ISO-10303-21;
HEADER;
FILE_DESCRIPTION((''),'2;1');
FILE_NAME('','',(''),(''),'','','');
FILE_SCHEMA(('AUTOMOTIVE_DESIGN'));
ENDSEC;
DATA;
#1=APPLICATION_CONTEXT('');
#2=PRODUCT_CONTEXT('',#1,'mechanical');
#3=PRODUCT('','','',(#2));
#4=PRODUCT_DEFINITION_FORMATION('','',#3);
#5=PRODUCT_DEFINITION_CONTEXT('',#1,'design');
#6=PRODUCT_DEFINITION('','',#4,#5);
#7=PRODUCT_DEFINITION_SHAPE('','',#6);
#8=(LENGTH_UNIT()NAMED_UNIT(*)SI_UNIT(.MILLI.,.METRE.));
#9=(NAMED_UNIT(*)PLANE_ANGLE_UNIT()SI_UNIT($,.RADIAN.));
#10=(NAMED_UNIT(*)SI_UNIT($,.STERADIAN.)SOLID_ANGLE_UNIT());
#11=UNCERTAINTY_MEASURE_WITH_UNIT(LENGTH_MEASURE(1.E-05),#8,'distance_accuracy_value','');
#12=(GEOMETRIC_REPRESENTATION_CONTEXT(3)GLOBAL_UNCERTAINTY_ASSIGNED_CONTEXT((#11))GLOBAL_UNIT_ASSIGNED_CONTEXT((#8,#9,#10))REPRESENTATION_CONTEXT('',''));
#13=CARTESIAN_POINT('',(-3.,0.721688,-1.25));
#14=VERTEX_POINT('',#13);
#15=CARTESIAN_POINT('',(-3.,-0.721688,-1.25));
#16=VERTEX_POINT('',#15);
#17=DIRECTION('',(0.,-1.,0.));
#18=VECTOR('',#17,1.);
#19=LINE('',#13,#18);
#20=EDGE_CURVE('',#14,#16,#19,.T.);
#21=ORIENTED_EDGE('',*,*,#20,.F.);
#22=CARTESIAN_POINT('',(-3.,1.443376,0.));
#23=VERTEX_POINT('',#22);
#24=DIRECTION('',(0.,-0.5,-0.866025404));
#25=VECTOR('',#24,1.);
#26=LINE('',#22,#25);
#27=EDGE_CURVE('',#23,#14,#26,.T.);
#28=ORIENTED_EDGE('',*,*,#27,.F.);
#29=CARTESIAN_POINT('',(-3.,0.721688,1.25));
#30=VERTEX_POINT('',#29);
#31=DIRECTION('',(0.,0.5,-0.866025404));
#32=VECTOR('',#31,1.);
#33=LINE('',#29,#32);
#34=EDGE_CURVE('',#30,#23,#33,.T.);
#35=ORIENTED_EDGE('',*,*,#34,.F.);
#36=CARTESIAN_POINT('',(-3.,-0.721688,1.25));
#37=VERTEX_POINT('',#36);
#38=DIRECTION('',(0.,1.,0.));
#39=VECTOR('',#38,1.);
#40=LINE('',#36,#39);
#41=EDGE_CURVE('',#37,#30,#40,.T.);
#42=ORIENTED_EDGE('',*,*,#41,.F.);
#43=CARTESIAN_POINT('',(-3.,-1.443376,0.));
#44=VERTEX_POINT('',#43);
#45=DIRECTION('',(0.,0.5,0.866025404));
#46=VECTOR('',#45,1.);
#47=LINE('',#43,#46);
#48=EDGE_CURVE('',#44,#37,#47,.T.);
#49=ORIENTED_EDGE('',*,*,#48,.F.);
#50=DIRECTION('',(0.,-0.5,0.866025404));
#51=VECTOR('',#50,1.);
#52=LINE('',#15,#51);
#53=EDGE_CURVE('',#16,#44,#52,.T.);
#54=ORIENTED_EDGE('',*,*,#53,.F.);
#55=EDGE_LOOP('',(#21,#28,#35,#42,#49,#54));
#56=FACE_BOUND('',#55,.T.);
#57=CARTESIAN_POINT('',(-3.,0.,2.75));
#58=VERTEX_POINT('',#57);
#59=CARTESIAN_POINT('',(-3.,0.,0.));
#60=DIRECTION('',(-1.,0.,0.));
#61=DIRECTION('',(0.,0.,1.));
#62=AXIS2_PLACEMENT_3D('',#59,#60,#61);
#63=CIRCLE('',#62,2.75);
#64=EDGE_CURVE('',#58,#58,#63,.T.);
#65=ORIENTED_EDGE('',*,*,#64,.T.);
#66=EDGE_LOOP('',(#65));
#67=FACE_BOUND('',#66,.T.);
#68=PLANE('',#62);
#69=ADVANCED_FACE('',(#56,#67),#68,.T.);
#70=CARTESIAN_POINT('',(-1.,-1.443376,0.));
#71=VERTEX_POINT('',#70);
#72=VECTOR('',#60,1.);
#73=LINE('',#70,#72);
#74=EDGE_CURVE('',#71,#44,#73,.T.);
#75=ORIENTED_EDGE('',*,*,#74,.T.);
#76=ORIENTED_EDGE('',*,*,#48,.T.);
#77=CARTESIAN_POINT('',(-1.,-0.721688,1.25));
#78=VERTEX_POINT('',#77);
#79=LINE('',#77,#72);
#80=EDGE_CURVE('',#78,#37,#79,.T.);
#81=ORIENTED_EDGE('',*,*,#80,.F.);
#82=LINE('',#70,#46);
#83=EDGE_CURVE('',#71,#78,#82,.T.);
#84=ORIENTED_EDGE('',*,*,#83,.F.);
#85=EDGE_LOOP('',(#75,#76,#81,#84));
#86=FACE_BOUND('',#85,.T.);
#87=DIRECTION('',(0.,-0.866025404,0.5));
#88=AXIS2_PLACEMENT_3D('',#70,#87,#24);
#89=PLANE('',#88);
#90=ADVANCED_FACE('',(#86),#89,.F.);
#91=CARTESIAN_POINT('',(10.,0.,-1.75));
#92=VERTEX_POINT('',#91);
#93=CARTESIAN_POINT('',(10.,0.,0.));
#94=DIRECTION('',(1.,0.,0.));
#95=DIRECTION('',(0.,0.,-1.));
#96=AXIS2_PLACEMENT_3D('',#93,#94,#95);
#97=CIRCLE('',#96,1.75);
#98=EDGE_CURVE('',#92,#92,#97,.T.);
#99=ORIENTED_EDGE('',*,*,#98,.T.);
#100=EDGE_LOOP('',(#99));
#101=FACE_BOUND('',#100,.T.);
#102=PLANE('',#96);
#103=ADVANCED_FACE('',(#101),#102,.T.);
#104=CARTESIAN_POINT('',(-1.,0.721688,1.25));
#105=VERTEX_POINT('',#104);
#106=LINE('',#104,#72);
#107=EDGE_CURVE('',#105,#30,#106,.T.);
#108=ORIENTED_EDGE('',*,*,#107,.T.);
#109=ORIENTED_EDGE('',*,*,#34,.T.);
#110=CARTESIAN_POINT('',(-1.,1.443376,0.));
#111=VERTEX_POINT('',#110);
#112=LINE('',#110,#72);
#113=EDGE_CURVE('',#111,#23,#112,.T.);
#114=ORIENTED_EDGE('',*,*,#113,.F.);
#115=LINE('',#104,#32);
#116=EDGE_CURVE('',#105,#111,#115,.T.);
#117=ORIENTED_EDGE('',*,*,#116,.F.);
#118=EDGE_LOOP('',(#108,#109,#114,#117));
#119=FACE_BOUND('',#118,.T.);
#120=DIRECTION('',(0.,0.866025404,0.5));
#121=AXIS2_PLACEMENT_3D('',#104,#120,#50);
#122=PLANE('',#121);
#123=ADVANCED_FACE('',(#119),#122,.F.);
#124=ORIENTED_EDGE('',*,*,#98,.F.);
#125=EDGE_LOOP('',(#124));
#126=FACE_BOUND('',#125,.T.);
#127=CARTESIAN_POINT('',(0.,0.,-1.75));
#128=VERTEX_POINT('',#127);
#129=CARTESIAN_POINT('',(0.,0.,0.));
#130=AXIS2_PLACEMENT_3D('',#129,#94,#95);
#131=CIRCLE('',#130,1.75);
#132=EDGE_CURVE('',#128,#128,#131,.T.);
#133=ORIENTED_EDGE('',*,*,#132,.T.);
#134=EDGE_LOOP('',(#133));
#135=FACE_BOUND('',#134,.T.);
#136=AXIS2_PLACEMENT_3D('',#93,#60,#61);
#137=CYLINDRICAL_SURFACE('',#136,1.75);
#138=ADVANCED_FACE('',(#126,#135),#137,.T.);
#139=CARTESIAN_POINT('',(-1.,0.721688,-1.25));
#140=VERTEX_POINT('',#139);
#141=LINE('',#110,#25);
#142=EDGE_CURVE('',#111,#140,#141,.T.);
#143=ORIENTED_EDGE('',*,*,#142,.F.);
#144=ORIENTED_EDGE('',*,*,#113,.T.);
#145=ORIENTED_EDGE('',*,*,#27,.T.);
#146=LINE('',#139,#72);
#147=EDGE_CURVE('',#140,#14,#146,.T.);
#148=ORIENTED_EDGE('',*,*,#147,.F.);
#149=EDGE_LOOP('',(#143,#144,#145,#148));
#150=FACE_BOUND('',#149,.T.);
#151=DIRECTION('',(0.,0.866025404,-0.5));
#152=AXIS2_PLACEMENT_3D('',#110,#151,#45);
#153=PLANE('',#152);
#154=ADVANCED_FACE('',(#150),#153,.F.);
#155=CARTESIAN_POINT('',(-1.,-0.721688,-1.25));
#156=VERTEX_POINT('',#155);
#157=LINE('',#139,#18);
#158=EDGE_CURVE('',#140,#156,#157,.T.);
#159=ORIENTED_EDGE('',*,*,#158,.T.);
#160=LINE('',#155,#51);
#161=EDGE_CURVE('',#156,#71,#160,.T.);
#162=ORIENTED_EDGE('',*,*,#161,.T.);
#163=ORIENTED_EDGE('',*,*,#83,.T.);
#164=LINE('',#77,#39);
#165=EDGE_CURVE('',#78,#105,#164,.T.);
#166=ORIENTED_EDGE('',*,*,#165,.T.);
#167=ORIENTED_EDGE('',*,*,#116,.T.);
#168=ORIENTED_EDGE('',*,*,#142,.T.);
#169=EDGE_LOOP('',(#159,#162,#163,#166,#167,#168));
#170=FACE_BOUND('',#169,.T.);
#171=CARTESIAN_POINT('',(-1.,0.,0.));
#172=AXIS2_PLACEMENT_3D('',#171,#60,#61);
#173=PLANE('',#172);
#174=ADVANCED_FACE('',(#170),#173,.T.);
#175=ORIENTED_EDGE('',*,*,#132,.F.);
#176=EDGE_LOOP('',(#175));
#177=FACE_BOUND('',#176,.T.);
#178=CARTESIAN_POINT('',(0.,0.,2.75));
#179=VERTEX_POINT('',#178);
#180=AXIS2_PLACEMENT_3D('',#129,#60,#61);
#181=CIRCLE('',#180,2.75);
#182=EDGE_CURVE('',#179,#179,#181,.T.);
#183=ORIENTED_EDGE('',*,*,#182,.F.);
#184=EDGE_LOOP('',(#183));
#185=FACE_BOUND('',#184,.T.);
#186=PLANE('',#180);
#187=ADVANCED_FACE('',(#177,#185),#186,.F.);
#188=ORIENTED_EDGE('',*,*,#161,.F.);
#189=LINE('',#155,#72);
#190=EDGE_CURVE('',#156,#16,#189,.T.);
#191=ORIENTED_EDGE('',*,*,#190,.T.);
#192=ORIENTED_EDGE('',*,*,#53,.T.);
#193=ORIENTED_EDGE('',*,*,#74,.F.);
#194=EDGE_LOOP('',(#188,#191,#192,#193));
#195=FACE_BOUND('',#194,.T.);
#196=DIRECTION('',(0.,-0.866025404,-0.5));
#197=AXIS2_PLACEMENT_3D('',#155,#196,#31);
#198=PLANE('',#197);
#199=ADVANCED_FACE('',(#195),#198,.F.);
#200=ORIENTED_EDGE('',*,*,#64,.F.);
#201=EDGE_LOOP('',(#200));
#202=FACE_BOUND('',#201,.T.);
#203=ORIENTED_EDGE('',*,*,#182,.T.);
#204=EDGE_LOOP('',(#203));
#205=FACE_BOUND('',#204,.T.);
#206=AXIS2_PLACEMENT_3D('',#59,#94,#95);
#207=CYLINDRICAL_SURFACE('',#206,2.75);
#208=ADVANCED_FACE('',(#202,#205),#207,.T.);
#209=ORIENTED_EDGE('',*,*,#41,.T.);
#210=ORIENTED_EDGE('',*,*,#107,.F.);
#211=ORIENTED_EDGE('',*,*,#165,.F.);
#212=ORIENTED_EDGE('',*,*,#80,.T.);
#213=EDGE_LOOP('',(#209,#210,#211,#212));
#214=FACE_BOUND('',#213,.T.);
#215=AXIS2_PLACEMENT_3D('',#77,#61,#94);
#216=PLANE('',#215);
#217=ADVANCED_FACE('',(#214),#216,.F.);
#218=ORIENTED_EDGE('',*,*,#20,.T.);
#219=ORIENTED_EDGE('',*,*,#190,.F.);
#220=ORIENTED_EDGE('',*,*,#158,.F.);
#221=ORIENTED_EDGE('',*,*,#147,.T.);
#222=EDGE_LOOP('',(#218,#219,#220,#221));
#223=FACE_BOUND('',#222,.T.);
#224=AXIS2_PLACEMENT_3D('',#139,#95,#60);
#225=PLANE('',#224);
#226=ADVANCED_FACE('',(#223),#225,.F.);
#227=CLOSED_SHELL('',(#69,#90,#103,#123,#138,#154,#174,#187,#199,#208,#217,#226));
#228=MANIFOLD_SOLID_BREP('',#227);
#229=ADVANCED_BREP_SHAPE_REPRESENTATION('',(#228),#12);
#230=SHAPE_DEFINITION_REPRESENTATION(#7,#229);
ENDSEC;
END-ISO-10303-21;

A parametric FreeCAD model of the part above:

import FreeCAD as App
import Part
import Sketcher
Q = App.Units.Quantity

doc = App.newDocument("Part")
body = doc.addObject("PartDesign::Body", "Body")

# Sketch on YZ plane
sketch1 = body.newObject("Sketcher::SketchObject", "Sketch")
sketch1.AttachmentSupport = (doc.getObject("YZ_Plane"), [""])
sketch1.MapMode = "FlatFace"
sketch1.addGeometry(Part.Circle(App.Vector(0, 0, 0), App.Vector(0, 0, 1), 1.8), False)
sketch1.addConstraint(Sketcher.Constraint("Coincident", 0, 3, -1, 1))
sketch1.addConstraint(Sketcher.Constraint("Diameter", 0, 3.5))
pad1 = body.newObject("PartDesign::Pad", "Pad")
pad1.Profile = sketch1
pad1.Length = 10

# Sketch on YZ plane
sketch2 = body.newObject("Sketcher::SketchObject", "Sketch001")
sketch2.AttachmentSupport = (doc.getObject("YZ_Plane"), [""])
sketch2.MapMode = "FlatFace"
sketch2.addGeometry(Part.Circle(App.Vector(0, 0, 0), App.Vector(0, 0, 1), 2.8), False)
sketch2.addConstraint(Sketcher.Constraint("Coincident", 0, 3, -1, 1))
sketch2.addConstraint(Sketcher.Constraint("Diameter", 0, 5.5))
pad2 = body.newObject("PartDesign::Pad", "Pad001")
pad2.Profile = sketch2
pad2.Length = 3
pad2.Reversed = True

# Sketch on YZ plane
sketch3 = body.newObject("Sketcher::SketchObject", "Sketch002")
sketch3.AttachmentSupport = (doc.getObject("YZ_Plane"), [""])
sketch3.MapMode = "FlatFace"
sketch3.AttachmentOffset = App.Placement(App.Vector(0, 0, -3), App.Rotation())
sketch3.addGeometry(Part.LineSegment(App.Vector(-0.7, 1.2, 0), App.Vector(0.7, 1.2, 0)), False)
sketch3.addGeometry(Part.LineSegment(App.Vector(0.7, 1.2, 0), App.Vector(1.4, 0, 0)), False)
sketch3.addGeometry(Part.LineSegment(App.Vector(1.4, 0, 0), App.Vector(0.7, -1.2, 0)), False)
sketch3.addGeometry(Part.LineSegment(App.Vector(0.7, -1.2, 0), App.Vector(-0.7, -1.2, 0)), False)
sketch3.addGeometry(Part.LineSegment(App.Vector(-0.7, -1.2, 0), App.Vector(-1.4, 0, 0)), False)
sketch3.addGeometry(Part.LineSegment(App.Vector(-1.4, 0, 0), App.Vector(-0.7, 1.2, 0)), False)
sketch3.addConstraint(Sketcher.Constraint("Coincident", 0, 2, 1, 1))
sketch3.addConstraint(Sketcher.Constraint("Coincident", 1, 2, 2, 1))
sketch3.addConstraint(Sketcher.Constraint("Coincident", 2, 2, 3, 1))
sketch3.addConstraint(Sketcher.Constraint("Coincident", 3, 2, 4, 1))
sketch3.addConstraint(Sketcher.Constraint("Coincident", 4, 2, 5, 1))
sketch3.addConstraint(Sketcher.Constraint("Coincident", 5, 2, 0, 1))
sketch3.addConstraint(Sketcher.Constraint("Horizontal", 0))
sketch3.addConstraint(Sketcher.Constraint("Horizontal", 3))
sketch3.addConstraint(Sketcher.Constraint("Symmetric", 0, 2, 3, 2, -1, 1))
sketch3.addConstraint(Sketcher.Constraint("Symmetric", 1, 2, 4, 2, -1, 1))
sketch3.addConstraint(Sketcher.Constraint("PointOnObject", 1, 2, -1))
sketch3.addConstraint(Sketcher.Constraint("Parallel", 2, 5))
sketch3.addConstraint(Sketcher.Constraint("Vertical", 0, 2, 2, 2))
sketch3.addConstraint(Sketcher.Constraint("Angle", 1, Q("-60 deg")))
sketch3.addConstraint(Sketcher.Constraint("DistanceY", 2, 2, 0, 2, 2.5))
sketch3.addConstraint(Sketcher.Constraint("DistanceX", 0, 1, 0, 2, 1.443376))
pocket1 = body.newObject("PartDesign::Pocket", "Pocket")
pocket1.Profile = sketch3
pocket1.Length = 2
pocket1.Reversed = True

doc.recompute()
